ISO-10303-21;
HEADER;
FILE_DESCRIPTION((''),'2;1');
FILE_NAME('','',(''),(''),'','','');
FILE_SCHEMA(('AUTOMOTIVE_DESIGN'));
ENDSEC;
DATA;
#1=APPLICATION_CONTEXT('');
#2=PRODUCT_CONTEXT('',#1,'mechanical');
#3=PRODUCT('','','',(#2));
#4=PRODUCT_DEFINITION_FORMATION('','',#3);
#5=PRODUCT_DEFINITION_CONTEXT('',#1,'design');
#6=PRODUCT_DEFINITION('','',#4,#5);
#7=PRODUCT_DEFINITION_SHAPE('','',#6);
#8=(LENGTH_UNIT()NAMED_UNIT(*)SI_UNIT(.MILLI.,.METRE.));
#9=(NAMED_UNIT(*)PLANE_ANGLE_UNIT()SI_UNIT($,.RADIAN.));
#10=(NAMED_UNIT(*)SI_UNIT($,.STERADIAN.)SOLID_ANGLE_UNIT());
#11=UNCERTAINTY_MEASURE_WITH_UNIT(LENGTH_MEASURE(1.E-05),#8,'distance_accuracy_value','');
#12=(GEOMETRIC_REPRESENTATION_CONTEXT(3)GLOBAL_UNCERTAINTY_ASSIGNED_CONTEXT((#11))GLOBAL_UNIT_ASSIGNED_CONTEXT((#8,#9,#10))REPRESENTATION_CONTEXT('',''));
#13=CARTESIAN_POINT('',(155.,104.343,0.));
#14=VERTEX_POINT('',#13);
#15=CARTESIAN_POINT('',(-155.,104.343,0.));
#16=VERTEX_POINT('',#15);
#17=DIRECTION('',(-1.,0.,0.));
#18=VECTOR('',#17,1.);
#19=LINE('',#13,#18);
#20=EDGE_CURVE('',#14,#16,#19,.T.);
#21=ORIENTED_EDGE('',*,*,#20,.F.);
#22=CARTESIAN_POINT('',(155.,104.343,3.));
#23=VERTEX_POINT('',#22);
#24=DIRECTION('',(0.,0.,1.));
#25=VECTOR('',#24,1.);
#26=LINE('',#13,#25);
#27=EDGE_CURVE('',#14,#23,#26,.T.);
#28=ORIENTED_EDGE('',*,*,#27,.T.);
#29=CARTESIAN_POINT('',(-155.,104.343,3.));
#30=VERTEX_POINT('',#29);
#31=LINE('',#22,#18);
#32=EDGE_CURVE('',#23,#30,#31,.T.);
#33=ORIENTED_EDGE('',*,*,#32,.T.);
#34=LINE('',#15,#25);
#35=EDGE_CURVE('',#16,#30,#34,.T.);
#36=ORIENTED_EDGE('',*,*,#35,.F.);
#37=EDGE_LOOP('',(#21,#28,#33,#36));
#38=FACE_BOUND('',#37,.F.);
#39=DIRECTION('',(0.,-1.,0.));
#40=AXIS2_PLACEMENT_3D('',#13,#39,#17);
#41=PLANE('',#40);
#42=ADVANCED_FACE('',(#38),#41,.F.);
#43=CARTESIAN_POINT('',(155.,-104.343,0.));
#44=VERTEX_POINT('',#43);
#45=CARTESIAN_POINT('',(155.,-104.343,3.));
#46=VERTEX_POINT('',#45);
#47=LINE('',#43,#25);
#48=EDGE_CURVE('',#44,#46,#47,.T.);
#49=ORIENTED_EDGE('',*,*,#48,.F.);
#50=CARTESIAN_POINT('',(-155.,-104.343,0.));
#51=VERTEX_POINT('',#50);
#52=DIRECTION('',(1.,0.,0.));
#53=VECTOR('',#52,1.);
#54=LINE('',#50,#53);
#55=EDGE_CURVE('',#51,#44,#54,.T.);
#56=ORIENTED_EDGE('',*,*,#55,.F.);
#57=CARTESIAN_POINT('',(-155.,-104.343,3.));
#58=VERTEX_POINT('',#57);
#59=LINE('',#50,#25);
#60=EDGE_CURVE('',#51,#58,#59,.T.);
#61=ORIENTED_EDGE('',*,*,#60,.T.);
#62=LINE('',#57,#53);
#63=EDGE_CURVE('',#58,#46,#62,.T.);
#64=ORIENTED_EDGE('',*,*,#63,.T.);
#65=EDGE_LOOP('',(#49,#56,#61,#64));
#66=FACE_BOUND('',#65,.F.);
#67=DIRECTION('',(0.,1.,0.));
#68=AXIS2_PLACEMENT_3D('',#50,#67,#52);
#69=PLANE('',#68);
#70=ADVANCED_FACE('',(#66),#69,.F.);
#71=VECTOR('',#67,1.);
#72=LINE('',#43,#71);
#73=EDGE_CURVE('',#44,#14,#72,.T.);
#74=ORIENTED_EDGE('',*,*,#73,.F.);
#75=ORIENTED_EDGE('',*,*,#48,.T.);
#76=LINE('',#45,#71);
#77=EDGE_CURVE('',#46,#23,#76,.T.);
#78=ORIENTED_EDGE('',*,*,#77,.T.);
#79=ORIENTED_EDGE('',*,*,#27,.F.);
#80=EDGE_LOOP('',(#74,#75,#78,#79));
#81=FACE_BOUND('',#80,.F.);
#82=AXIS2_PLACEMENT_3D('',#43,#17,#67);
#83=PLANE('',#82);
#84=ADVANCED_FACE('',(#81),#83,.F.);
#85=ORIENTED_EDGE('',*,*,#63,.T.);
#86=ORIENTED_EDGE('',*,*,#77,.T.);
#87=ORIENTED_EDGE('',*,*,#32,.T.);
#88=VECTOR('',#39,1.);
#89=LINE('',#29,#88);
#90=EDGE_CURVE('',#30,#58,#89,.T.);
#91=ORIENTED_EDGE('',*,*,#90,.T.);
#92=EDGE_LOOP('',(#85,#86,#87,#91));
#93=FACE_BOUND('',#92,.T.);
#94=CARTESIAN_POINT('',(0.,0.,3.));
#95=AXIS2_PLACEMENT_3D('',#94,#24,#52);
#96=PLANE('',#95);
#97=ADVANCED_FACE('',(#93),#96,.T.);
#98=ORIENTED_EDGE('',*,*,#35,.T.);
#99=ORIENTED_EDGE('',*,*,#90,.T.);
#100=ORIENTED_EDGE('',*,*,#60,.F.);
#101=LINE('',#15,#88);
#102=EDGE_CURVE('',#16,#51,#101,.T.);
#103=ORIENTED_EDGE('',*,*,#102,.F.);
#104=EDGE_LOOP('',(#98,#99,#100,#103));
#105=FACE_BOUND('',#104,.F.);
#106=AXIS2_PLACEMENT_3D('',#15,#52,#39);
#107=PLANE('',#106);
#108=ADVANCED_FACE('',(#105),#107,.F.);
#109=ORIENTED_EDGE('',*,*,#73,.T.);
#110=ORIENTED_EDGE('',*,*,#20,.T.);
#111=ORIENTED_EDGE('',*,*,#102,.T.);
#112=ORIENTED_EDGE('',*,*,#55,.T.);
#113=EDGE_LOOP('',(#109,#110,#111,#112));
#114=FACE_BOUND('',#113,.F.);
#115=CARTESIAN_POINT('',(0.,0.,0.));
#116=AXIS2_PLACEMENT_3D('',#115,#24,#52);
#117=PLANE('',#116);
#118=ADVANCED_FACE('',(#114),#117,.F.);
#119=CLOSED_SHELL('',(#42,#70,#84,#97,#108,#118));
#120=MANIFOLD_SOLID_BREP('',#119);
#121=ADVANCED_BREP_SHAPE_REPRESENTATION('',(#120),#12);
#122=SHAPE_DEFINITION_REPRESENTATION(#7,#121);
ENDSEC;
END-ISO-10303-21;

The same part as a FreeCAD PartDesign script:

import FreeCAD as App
import Part
import Sketcher

V = App.Vector

doc = App.newDocument("Part")
params = doc.addObject("Spreadsheet::Sheet", "Params")
for row, (alias, value) in enumerate([
    ("sketch1_width", "310 mm"),
    ("pad1_length", "3 mm"),
], start=1):
    params.set(f"A{row}", alias)
    params.set(f"B{row}", "=" + value)
    params.setAlias(f"B{row}", alias)

body = doc.addObject("PartDesign::Body", "Body")

sketch1 = doc.addObject("Sketcher::SketchObject", "Sketch")
body.addObject(sketch1)
sketch1.AttachmentSupport = (doc.XY_Plane, [""])
sketch1.MapMode = "FlatFace"
sketch1.addGeometry(Part.LineSegment(V(155, -104, 0), V(155, 104, 0)), False)
sketch1.addGeometry(Part.LineSegment(V(155, 104, 0), V(-155, 104, 0)), False)
sketch1.addGeometry(Part.LineSegment(V(-155, 104, 0), V(-155, -104, 0)), False)
sketch1.addGeometry(Part.LineSegment(V(-155, -104, 0), V(155, -104, 0)), False)
sketch1.addConstraint(Sketcher.Constraint("Coincident", 0, 2, 1, 1))
sketch1.addConstraint(Sketcher.Constraint("Coincident", 1, 2, 2, 1))
sketch1.addConstraint(Sketcher.Constraint("Coincident", 2, 2, 3, 1))
sketch1.addConstraint(Sketcher.Constraint("Coincident", 3, 2, 0, 1))
sketch1.addConstraint(Sketcher.Constraint("Vertical", 0))
sketch1.addConstraint(Sketcher.Constraint("Horizontal", 1))
sketch1.addConstraint(Sketcher.Constraint("Vertical", 2))
sketch1.addConstraint(Sketcher.Constraint("Horizontal", 3))
sketch1.addConstraint(Sketcher.Constraint("Symmetric", 0, 2, 2, 2, -1, 1))
sketch1.addConstraint(Sketcher.Constraint("DistanceX", 1, 2, 1, 1, 310.0))
sketch1.addConstraint(Sketcher.Constraint("DistanceY", 0, 1, 0, 2, 208.686))
sketch1.setExpression("Constraints[9]", "Params.sketch1_width")
pad1 = doc.addObject("PartDesign::Pad", "Pad")
body.addObject(pad1)
pad1.Profile = sketch1
pad1.setExpression("Length", "Params.pad1_length")

doc.recompute()
